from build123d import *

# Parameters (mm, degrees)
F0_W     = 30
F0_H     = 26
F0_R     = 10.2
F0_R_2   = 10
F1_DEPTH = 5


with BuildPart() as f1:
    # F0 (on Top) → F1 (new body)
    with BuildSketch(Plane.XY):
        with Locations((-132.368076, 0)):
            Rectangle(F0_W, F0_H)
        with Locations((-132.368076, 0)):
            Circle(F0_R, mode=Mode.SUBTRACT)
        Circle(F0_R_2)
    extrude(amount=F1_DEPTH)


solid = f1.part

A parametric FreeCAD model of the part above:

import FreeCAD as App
import Part
import Sketcher
Q = App.Units.Quantity


def add_polygon(sketch, points):
    """Adds a closed chain of lines whose ends are joined by coincident constraints."""
    first, n = sketch.GeometryCount, len(points)
    for a, b in zip(points, points[1:] + points[:1]):
        sketch.addGeometry(Part.LineSegment(App.Vector(*a, 0), App.Vector(*b, 0)), False)
    for i in range(n):
        sketch.addConstraint(Sketcher.Constraint("Coincident", first + i, 2, first + (i + 1) % n, 1))

doc = App.newDocument("Part")
body = doc.addObject("PartDesign::Body", "Body")
body.AllowCompound = True

sketch1 = doc.addObject("Sketcher::SketchObject", "Sketch")
body.addObject(sketch1)
sketch1.AttachmentSupport = (doc.XY_Plane, [""])
sketch1.MapMode = "FlatFace"
add_polygon(sketch1, [(-147, 13), (-147, -13), (-117, -13), (-117, 13)])
sketch1.addGeometry(Part.Circle(App.Vector(-132, 0, 0), App.Vector(0, 0, 1), 10), False)
sketch1.addGeometry(Part.Circle(App.Vector(0, 0, 0), App.Vector(0, 0, 1), 10), False)
sketch1.addConstraint(Sketcher.Constraint("Vertical", 0))
sketch1.addConstraint(Sketcher.Constraint("Horizontal", 1))
sketch1.addConstraint(Sketcher.Constraint("Vertical", 2))
sketch1.addConstraint(Sketcher.Constraint("Horizontal", 3))
sketch1.addConstraint(Sketcher.Constraint("Coincident", 5, 3, -1, 1))
sketch1.addConstraint(Sketcher.Constraint("PointOnObject", 4, 3, -1))
sketch1.addConstraint(Sketcher.Constraint("Diameter", 5, Q("20 mm")))
sketch1.addConstraint(Sketcher.Constraint("Diameter", 4, Q("20.4 mm")))
sketch1.addConstraint(Sketcher.Constraint("DistanceX", 1, 1, 1, 2, Q("30 mm")))
sketch1.addConstraint(Sketcher.Constraint("DistanceY", 0, 2, 0, 1, Q("26 mm")))
sketch1.addConstraint(Sketcher.Constraint("DistanceY", 0, 2, -1, 1, Q("13 mm")))
sketch1.addConstraint(Sketcher.Constraint("DistanceX", 0, 2, 4, 3, Q("15 mm")))
sketch1.addConstraint(Sketcher.Constraint("DistanceX", 4, 3, -1, 1, Q("132.368076 mm")))
pad1 = doc.addObject("PartDesign::Pad", "Pad")
body.addObject(pad1)
pad1.Profile = sketch1
pad1.Length = 5

doc.recompute()
